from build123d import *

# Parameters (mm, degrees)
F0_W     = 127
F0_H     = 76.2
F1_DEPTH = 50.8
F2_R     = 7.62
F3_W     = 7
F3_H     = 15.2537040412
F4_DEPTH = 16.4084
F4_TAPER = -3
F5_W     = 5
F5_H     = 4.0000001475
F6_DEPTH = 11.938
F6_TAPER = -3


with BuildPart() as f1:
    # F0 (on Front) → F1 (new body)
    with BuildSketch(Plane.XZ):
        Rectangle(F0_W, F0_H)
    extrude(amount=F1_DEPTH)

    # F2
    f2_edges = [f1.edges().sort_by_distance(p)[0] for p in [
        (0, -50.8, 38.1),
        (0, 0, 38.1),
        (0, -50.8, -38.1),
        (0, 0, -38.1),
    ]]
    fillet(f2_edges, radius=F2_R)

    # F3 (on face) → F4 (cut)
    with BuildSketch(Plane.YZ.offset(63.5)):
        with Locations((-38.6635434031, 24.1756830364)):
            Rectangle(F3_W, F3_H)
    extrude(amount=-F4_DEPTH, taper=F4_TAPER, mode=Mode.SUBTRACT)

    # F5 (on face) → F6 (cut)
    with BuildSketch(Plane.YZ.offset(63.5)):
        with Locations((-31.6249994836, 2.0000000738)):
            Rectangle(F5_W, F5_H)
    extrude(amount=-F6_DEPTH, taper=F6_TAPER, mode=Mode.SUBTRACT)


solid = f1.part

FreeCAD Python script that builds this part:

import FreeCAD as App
import Part
import Sketcher
Q = App.Units.Quantity


def edges_at(feature, points):
    """Names of the edges that pass closest to the given points."""
    edges = feature.Shape.Edges
    near = lambda p: min(range(len(edges)), key=lambda i: edges[i].distToShape(Part.Vertex(*p))[0])
    return sorted({f"Edge{near(p) + 1}" for p in points})

doc = App.newDocument("Part")
body = doc.addObject("PartDesign::Body", "Body")

sketch1 = doc.addObject("Sketcher::SketchObject", "Sketch")
body.addObject(sketch1)
sketch1.AttachmentSupport = (doc.XZ_Plane, [""])
sketch1.MapMode = "FlatFace"
sketch1.addGeometry([
    Part.LineSegment(App.Vector(-63.5, 38.1, 0), App.Vector(-63.5, -38.1, 0)),
    Part.LineSegment(App.Vector(-63.5, -38.1, 0), App.Vector(63.5, -38.1, 0)),
    Part.LineSegment(App.Vector(63.5, -38.1, 0), App.Vector(63.5, 38.1, 0)),
    Part.LineSegment(App.Vector(63.5, 38.1, 0), App.Vector(-63.5, 38.1, 0)),
], False)
sketch1.addConstraint([
    Sketcher.Constraint("Coincident", 0, 2, 1, 1),
    Sketcher.Constraint("Coincident", 1, 2, 2, 1),
    Sketcher.Constraint("Coincident", 2, 2, 3, 1),
    Sketcher.Constraint("Coincident", 3, 2, 0, 1),
    Sketcher.Constraint("Vertical", 0),
    Sketcher.Constraint("Horizontal", 1),
    Sketcher.Constraint("Vertical", 2),
    Sketcher.Constraint("Horizontal", 3),
    Sketcher.Constraint("Symmetric", 0, 2, 2, 2, -1, 1),
    Sketcher.Constraint("DistanceX", 1, 1, 1, 2, Q("5 in")),
    Sketcher.Constraint("DistanceY", 0, 2, 0, 1, Q("3 in")),
])
pad1 = doc.addObject("PartDesign::Pad", "Pad")
body.addObject(pad1)
pad1.Profile = sketch1
pad1.Length = Q("2 in")
doc.recompute()

fillet = doc.addObject("PartDesign::Fillet", "Fillet")
body.addObject(fillet)
fillet.Base = (pad1, edges_at(pad1, [
    (0, -50.8, 38.1),
    (0, 0, 38.1),
    (0, -50.8, -38.1),
    (0, 0, -38.1),
]))
fillet.Radius = Q("0.3 in")

sketch2 = doc.addObject("Sketcher::SketchObject", "Sketch001")
body.addObject(sketch2)
sketch2.AttachmentSupport = (doc.YZ_Plane, [""])
sketch2.MapMode = "FlatFace"
sketch2.AttachmentOffset = App.Placement(App.Vector(0, 0, 2.5 * 25.4), App.Rotation())
sketch2.addGeometry([
    Part.LineSegment(App.Vector(-42.163543, 31.802535, 0), App.Vector(-42.163543, 16.548831, 0)),
    Part.LineSegment(App.Vector(-42.163543, 16.548831, 0), App.Vector(-35.163543, 16.548831, 0)),
    Part.LineSegment(App.Vector(-35.163543, 16.548831, 0), App.Vector(-35.163543, 31.802535, 0)),
    Part.LineSegment(App.Vector(-35.163543, 31.802535, 0), App.Vector(-42.163543, 31.802535, 0)),
], False)
sketch2.addConstraint([
    Sketcher.Constraint("Coincident", 0, 2, 1, 1),
    Sketcher.Constraint("Coincident", 1, 2, 2, 1),
    Sketcher.Constraint("Coincident", 2, 2, 3, 1),
    Sketcher.Constraint("Coincident", 3, 2, 0, 1),
    Sketcher.Constraint("Vertical", 0),
    Sketcher.Constraint("Horizontal", 1),
    Sketcher.Constraint("Vertical", 2),
    Sketcher.Constraint("Horizontal", 3),
    Sketcher.Constraint("DistanceX", 1, 1, 1, 2, Q("7 mm")),
    Sketcher.Constraint("DistanceY", 0, 2, 0, 1, Q("15.253704 mm")),
    Sketcher.Constraint("DistanceY", -1, 1, 0, 2, Q("16.548831 mm")),
    Sketcher.Constraint("DistanceX", 0, 2, -1, 1, Q("42.163543 mm")),
])
pocket1 = doc.addObject("PartDesign::Pocket", "Pocket")
body.addObject(pocket1)
pocket1.Profile = sketch2
pocket1.Length = Q("0.646 in")
pocket1.TaperAngle = 3

sketch3 = doc.addObject("Sketcher::SketchObject", "Sketch002")
body.addObject(sketch3)
sketch3.AttachmentSupport = (doc.YZ_Plane, [""])
sketch3.MapMode = "FlatFace"
sketch3.AttachmentOffset = App.Placement(App.Vector(0, 0, 2.5 * 25.4), App.Rotation())
sketch3.addGeometry([
    Part.LineSegment(App.Vector(-34.124999, 4, 0), App.Vector(-34.124999, 0, 0)),
    Part.LineSegment(App.Vector(-34.124999, 0, 0), App.Vector(-29.124999, 0, 0)),
    Part.LineSegment(App.Vector(-29.124999, 0, 0), App.Vector(-29.124999, 4, 0)),
    Part.LineSegment(App.Vector(-29.124999, 4, 0), App.Vector(-34.124999, 4, 0)),
], False)
sketch3.addConstraint([
    Sketcher.Constraint("Coincident", 0, 2, 1, 1),
    Sketcher.Constraint("Coincident", 1, 2, 2, 1),
    Sketcher.Constraint("Coincident", 2, 2, 3, 1),
    Sketcher.Constraint("Coincident", 3, 2, 0, 1),
    Sketcher.Constraint("Vertical", 0),
    Sketcher.Constraint("Horizontal", 1),
    Sketcher.Constraint("Vertical", 2),
    Sketcher.Constraint("Horizontal", 3),
    Sketcher.Constraint("PointOnObject", 0, 2, -1),
    Sketcher.Constraint("DistanceX", 1, 1, 1, 2, Q("5 mm")),
    Sketcher.Constraint("DistanceY", 0, 2, 0, 1, Q("4 mm")),
    Sketcher.Constraint("DistanceX", 0, 2, -1, 1, Q("34.124999 mm")),
])
pocket2 = doc.addObject("PartDesign::Pocket", "Pocket001")
body.addObject(pocket2)
pocket2.Profile = sketch3
pocket2.Length = Q("0.47 in")
pocket2.TaperAngle = 3

doc.recompute()
